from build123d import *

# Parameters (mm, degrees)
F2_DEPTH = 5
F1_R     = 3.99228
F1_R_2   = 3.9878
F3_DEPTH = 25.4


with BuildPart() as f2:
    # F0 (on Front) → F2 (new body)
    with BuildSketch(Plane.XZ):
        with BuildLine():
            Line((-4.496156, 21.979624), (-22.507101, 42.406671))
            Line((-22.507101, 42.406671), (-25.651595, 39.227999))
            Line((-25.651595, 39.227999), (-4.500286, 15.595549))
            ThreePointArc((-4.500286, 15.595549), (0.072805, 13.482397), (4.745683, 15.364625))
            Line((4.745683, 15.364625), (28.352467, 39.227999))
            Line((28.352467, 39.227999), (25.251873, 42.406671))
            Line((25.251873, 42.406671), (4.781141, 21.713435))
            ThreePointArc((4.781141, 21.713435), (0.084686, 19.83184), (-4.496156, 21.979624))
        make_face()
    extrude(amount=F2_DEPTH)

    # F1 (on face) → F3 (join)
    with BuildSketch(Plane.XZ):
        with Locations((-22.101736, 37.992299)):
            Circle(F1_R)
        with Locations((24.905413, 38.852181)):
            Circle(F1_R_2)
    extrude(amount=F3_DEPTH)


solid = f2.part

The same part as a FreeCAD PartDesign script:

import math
import FreeCAD as App
import Part
import Sketcher
from FreeCAD import Vector
Q = App.Units.Quantity

doc = App.newDocument("Part")
params = doc.addObject("Spreadsheet::Sheet", "Params")
for row, (alias, value) in enumerate([
    ("sketch1_radius", "0.25 in"),
    ("pad1_length", "5 mm"),
    ("sketch2_diameter", "0.314 in"),
    ("pad2_length", "1 in"),
], start=1):
    params.set(f"A{row}", alias)
    params.set(f"B{row}", "=" + value)
    params.setAlias(f"B{row}", alias)

body = doc.addObject("PartDesign::Body", "Body")

sketch1 = body.newObject("Sketcher::SketchObject", "Sketch")
sketch1.AttachmentSupport = (doc.getObject("XZ_Plane"), [""])
sketch1.MapMode = "FlatFace"
sketch1.addGeometry([
    Part.LineSegment(Vector(-4.5, 22, 0), Vector(-22.5, 42.4, 0)),
    Part.LineSegment(Vector(-22.5, 42.4, 0), Vector(-25.7, 39.2, 0)),
    Part.LineSegment(Vector(-25.7, 39.2, 0), Vector(-4.5, 15.6, 0)),
    Part.ArcOfCircle(Part.Circle(Vector(0.2, 19.8, 0), Vector(0, 0, 1), 6.3), math.radians(-138), math.radians(-45)),
    Part.LineSegment(Vector(4.7, 15.4, 0), Vector(28.4, 39.2, 0)),
    Part.LineSegment(Vector(28.4, 39.2, 0), Vector(25.3, 42.4, 0)),
    Part.LineSegment(Vector(25.3, 42.4, 0), Vector(4.8, 21.7, 0)),
    Part.ArcOfCircle(Part.Circle(Vector(0.3, 26.2, 0), Vector(0, 0, 1), 6.4), math.radians(-139), math.radians(-45)),
], False)
sketch1.addConstraint([
    Sketcher.Constraint("Coincident", 0, 2, 1, 1),
    Sketcher.Constraint("Coincident", 1, 2, 2, 1),
    Sketcher.Constraint("Tangent", 2, 2, 3, 1),
    Sketcher.Constraint("Tangent", 3, 2, 4, 1),
    Sketcher.Constraint("Coincident", 4, 2, 5, 1),
    Sketcher.Constraint("Coincident", 5, 2, 6, 1),
    Sketcher.Constraint("Tangent", 6, 2, 7, 2),
    Sketcher.Constraint("Tangent", 7, 1, 0, 1),
    Sketcher.Constraint("Equal", 3, 7),
    Sketcher.Constraint("Parallel", 1, 4),
    Sketcher.Constraint("Parallel", 4, 6),
    Sketcher.Constraint("Horizontal", 1, 2, 4, 2),
    Sketcher.Constraint("Horizontal", 0, 2, 5, 2),
    Sketcher.Constraint("Radius", 3, Q("0.25 in")),
    Sketcher.Constraint("DistanceX", 0, 2, -1, 1, 22.507101),
    Sketcher.Constraint("DistanceY", -1, 1, 1, 2, 39.227999),
    Sketcher.Constraint("DistanceY", 3, 2, 7, 1, 6.614999),
    Sketcher.Constraint("Distance", 1, 4.471219),
    Sketcher.Constraint("Distance", 4, 33.566961),
    Sketcher.Constraint("DistanceX", -1, 1, 3, 3, 0.231351),
    Sketcher.Constraint("DistanceX", -1, 1, 7, 3, 0.266809),
    Sketcher.Constraint("DistanceY", -1, 1, 7, 3, 26.179228),
])
sketch1.setExpression("Constraints[13]", "Params.sketch1_radius")
pad1 = body.newObject("PartDesign::Pad", "Pad")
pad1.Profile = sketch1
pad1.setExpression("Length", "Params.pad1_length")

sketch2 = body.newObject("Sketcher::SketchObject", "Sketch001")
sketch2.AttachmentSupport = (doc.getObject("XZ_Plane"), [""])
sketch2.MapMode = "FlatFace"
sketch2.addGeometry([
    Part.Circle(Vector(-22.1, 38, 0), Vector(0, 0, 1), 4),
    Part.Circle(Vector(24.9, 38.9, 0), Vector(0, 0, 1), 4),
], False)
sketch2.addConstraint([
    Sketcher.Constraint("Diameter", 1, Q("0.314 in")),
    Sketcher.Constraint("Diameter", 0, 7.98456),
    Sketcher.Constraint("DistanceY", -1, 1, 0, 3, 37.992299),
    Sketcher.Constraint("DistanceY", -1, 1, 1, 3, 38.852181),
    Sketcher.Constraint("DistanceX", 0, 3, 1, 3, 47.007149),
    Sketcher.Constraint("DistanceX", 0, 3, -1, 1, 22.101736),
])
sketch2.setExpression("Constraints[0]", "Params.sketch2_diameter")
pad2 = body.newObject("PartDesign::Pad", "Pad001")
pad2.Profile = sketch2
pad2.setExpression("Length", "Params.pad2_length")

doc.recompute()
